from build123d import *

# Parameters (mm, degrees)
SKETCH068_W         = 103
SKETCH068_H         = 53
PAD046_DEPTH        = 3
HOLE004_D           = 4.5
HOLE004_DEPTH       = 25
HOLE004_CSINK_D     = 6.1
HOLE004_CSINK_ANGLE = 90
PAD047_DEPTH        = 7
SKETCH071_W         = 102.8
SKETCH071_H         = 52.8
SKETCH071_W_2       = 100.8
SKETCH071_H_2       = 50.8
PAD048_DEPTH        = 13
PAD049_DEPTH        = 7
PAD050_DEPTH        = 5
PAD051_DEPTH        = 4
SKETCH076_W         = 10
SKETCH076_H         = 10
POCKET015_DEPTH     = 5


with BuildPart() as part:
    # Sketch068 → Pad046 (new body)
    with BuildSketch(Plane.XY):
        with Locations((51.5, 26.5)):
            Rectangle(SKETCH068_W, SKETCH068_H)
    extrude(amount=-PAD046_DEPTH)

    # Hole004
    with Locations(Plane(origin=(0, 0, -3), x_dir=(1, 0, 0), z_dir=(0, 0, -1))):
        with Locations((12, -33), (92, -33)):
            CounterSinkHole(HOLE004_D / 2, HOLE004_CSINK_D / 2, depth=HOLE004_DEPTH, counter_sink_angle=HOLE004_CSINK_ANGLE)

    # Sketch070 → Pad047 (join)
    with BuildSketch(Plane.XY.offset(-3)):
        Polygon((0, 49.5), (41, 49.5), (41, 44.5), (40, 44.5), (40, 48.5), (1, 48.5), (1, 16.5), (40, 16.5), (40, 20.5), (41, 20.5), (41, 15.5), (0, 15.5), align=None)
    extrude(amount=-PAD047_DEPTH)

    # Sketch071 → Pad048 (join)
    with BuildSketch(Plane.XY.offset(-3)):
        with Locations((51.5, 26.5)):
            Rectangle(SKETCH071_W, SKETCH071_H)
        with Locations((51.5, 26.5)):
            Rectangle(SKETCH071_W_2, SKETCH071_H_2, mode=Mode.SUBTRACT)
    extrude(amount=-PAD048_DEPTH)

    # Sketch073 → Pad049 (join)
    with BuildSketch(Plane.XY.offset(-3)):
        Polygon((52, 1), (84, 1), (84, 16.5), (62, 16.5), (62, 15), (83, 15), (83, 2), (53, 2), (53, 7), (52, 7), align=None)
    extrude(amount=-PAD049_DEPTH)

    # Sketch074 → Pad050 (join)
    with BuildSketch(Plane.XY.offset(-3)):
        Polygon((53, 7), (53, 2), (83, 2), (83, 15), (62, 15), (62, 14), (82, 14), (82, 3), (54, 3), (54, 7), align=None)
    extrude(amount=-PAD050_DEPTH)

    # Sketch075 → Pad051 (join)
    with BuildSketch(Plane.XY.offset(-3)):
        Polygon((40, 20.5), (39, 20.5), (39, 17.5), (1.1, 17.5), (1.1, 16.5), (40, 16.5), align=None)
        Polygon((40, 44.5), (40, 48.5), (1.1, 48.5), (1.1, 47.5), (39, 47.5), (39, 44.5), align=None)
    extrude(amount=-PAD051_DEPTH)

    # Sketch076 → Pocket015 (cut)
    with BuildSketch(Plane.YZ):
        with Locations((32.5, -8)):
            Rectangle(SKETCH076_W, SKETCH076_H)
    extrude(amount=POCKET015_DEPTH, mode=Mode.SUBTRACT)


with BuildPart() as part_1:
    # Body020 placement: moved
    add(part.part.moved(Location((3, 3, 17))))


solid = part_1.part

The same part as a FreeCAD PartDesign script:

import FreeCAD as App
import Part
import Sketcher

V = App.Vector
Q = App.Units.Quantity

doc = App.newDocument("Part")
body = doc.addObject("PartDesign::Body", "Body")

# Sketch on XY plane
sketch1 = body.newObject("Sketcher::SketchObject", "Sketch")
sketch1.AttachmentSupport = (doc.getObject("XY_Plane"), [""])
sketch1.MapMode = "FlatFace"
sketch1.addGeometry(Part.LineSegment(V(0, 53, 0), V(0, 0, 0)), False)
sketch1.addGeometry(Part.LineSegment(V(0, 0, 0), V(103, 0, 0)), False)
sketch1.addGeometry(Part.LineSegment(V(103, 0, 0), V(103, 53, 0)), False)
sketch1.addGeometry(Part.LineSegment(V(103, 53, 0), V(0, 53, 0)), False)
sketch1.addConstraint(Sketcher.Constraint("Coincident", 0, 2, 1, 1))
sketch1.addConstraint(Sketcher.Constraint("Coincident", 1, 2, 2, 1))
sketch1.addConstraint(Sketcher.Constraint("Coincident", 2, 2, 3, 1))
sketch1.addConstraint(Sketcher.Constraint("Coincident", 3, 2, 0, 1))
sketch1.addConstraint(Sketcher.Constraint("Vertical", 0))
sketch1.addConstraint(Sketcher.Constraint("Horizontal", 1))
sketch1.addConstraint(Sketcher.Constraint("Vertical", 2))
sketch1.addConstraint(Sketcher.Constraint("Horizontal", 3))
sketch1.addConstraint(Sketcher.Constraint("Coincident", 0, 2, -1, 1))
sketch1.addConstraint(Sketcher.Constraint("DistanceX", 1, 1, 1, 2, Q("103 mm")))
sketch1.addConstraint(Sketcher.Constraint("DistanceY", 0, 2, 0, 1, Q("53 mm")))
pad1 = body.newObject("PartDesign::Pad", "Pad")
pad1.Profile = sketch1
pad1.Length = 3
pad1.Reversed = True

# Sketch on XY plane
sketch2 = body.newObject("Sketcher::SketchObject", "Sketch001")
sketch2.AttachmentSupport = (doc.getObject("XY_Plane"), [""])
sketch2.MapMode = "FlatFace"
sketch2.AttachmentOffset = App.Placement(V(0, 0, -3), App.Rotation())
sketch2.addGeometry(Part.Circle(V(12, 33, 0), V(0, 0, 1), 2.2), False)
sketch2.addGeometry(Part.Circle(V(92, 33, 0), V(0, 0, 1), 2.2), False)
sketch2.addConstraint(Sketcher.Constraint("Equal", 0, 1))
sketch2.addConstraint(Sketcher.Constraint("Horizontal", 0, 3, 1, 3))
sketch2.addConstraint(Sketcher.Constraint("Diameter", 0, Q("4.5 mm")))
sketch2.addConstraint(Sketcher.Constraint("DistanceX", -1, 1, 0, 3, Q("12 mm")))
sketch2.addConstraint(Sketcher.Constraint("DistanceY", -1, 1, 0, 3, Q("33 mm")))
sketch2.addConstraint(Sketcher.Constraint("DistanceX", -1, 1, 1, 3, Q("92 mm")))
doc.recompute()
hole = body.newObject("PartDesign::Hole", "Hole")
hole.Profile = sketch2
hole.ThreadType = "None"
hole.Diameter = 4.5
hole.DepthType = "Dimension"
hole.Depth = 25
hole.DrillPoint = "Flat"
hole.HoleCutType = "Countersink"
hole.HoleCutDiameter = 6.1
hole.HoleCutCountersinkAngle = 90
hole.Reversed = True

# Sketch on XY plane
sketch3 = body.newObject("Sketcher::SketchObject", "Sketch002")
sketch3.AttachmentSupport = (doc.getObject("XY_Plane"), [""])
sketch3.MapMode = "FlatFace"
sketch3.AttachmentOffset = App.Placement(V(0, 0, -3), App.Rotation())
sketch3.addGeometry(Part.LineSegment(V(41, 49.5, 0), V(0, 49.5, 0)), False)
sketch3.addGeometry(Part.LineSegment(V(0, 49.5, 0), V(0, 15.5, 0)), False)
sketch3.addGeometry(Part.LineSegment(V(0, 15.5, 0), V(41, 15.5, 0)), False)
sketch3.addGeometry(Part.LineSegment(V(41, 15.5, 0), V(41, 20.5, 0)), False)
sketch3.addGeometry(Part.LineSegment(V(41, 20.5, 0), V(40, 20.5, 0)), False)
sketch3.addGeometry(Part.LineSegment(V(40, 20.5, 0), V(40, 16.5, 0)), False)
sketch3.addGeometry(Part.LineSegment(V(40, 16.5, 0), V(1, 16.5, 0)), False)
sketch3.addGeometry(Part.LineSegment(V(1, 16.5, 0), V(1, 48.5, 0)), False)
sketch3.addGeometry(Part.LineSegment(V(1, 48.5, 0), V(40, 48.5, 0)), False)
sketch3.addGeometry(Part.LineSegment(V(40, 48.5, 0), V(40, 44.5, 0)), False)
sketch3.addGeometry(Part.LineSegment(V(40, 44.5, 0), V(41, 44.5, 0)), False)
sketch3.addGeometry(Part.LineSegment(V(41, 44.5, 0), V(41, 49.5, 0)), False)
sketch3.addConstraint(Sketcher.Constraint("Coincident", 0, 2, 1, 1))
sketch3.addConstraint(Sketcher.Constraint("Coincident", 1, 2, 2, 1))
sketch3.addConstraint(Sketcher.Constraint("Coincident", 2, 2, 3, 1))
sketch3.addConstraint(Sketcher.Constraint("Coincident", 3, 2, 4, 1))
sketch3.addConstraint(Sketcher.Constraint("Coincident", 4, 2, 5, 1))
sketch3.addConstraint(Sketcher.Constraint("Coincident", 5, 2, 6, 1))
sketch3.addConstraint(Sketcher.Constraint("Coincident", 6, 2, 7, 1))
sketch3.addConstraint(Sketcher.Constraint("Coincident", 7, 2, 8, 1))
sketch3.addConstraint(Sketcher.Constraint("Coincident", 8, 2, 9, 1))
sketch3.addConstraint(Sketcher.Constraint("Coincident", 9, 2, 10, 1))
sketch3.addConstraint(Sketcher.Constraint("Coincident", 10, 2, 11, 1))
sketch3.addConstraint(Sketcher.Constraint("Coincident", 11, 2, 0, 1))
sketch3.addConstraint(Sketcher.Constraint("Horizontal", 0))
sketch3.addConstraint(Sketcher.Constraint("Vertical", 1))
sketch3.addConstraint(Sketcher.Constraint("Horizontal", 2))
sketch3.addConstraint(Sketcher.Constraint("Vertical", 3))
sketch3.addConstraint(Sketcher.Constraint("Horizontal", 4))
sketch3.addConstraint(Sketcher.Constraint("Vertical", 5))
sketch3.addConstraint(Sketcher.Constraint("Horizontal", 6))
sketch3.addConstraint(Sketcher.Constraint("Vertical", 7))
sketch3.addConstraint(Sketcher.Constraint("Horizontal", 8))
sketch3.addConstraint(Sketcher.Constraint("Vertical", 9))
sketch3.addConstraint(Sketcher.Constraint("Horizontal", 10))
sketch3.addConstraint(Sketcher.Constraint("Vertical", 11))
sketch3.addConstraint(Sketcher.Constraint("PointOnObject", 0, 2, -2))
sketch3.addConstraint(Sketcher.Constraint("Vertical", 5, 2, 8, 2))
sketch3.addConstraint(Sketcher.Constraint("Vertical", 3, 2, 10, 2))
sketch3.addConstraint(Sketcher.Constraint("Equal", 5, 9))
sketch3.addConstraint(Sketcher.Constraint("Equal", 3, 11))
sketch3.addConstraint(Sketcher.Constraint("DistanceX", 0, 2, 0, 1, Q("41 mm")))
sketch3.addConstraint(Sketcher.Constraint("DistanceX", 4, 2, 4, 1, Q("1 mm")))
sketch3.addConstraint(Sketcher.Constraint("DistanceX", 6, 2, 6, 1, Q("39 mm")))
sketch3.addConstraint(Sketcher.Constraint("DistanceY", 1, 2, 1, 1, Q("34 mm")))
sketch3.addConstraint(Sketcher.Constraint("DistanceY", 3, 1, 3, 2, Q("5 mm")))
sketch3.addConstraint(Sketcher.Constraint("DistanceY", 5, 2, 5, 1, Q("4 mm")))
sketch3.addConstraint(Sketcher.Constraint("DistanceY", -1, 1, 0, 2, Q("49.5 mm")))
pad2 = body.newObject("PartDesign::Pad", "Pad001")
pad2.Profile = sketch3
pad2.Length = 7
pad2.Reversed = True

# Sketch on XY plane
sketch4 = body.newObject("Sketcher::SketchObject", "Sketch003")
sketch4.AttachmentSupport = (doc.getObject("XY_Plane"), [""])
sketch4.MapMode = "FlatFace"
sketch4.AttachmentOffset = App.Placement(V(0, 0, -3), App.Rotation())
sketch4.addGeometry(Part.LineSegment(V(0, 53, 0), V(0, 0, 0)), False)
sketch4.addGeometry(Part.LineSegment(V(0, 0, 0), V(103, 0, 0)), False)
sketch4.addGeometry(Part.LineSegment(V(103, 0, 0), V(103, 53, 0)), False)
sketch4.addGeometry(Part.LineSegment(V(103, 53, 0), V(0, 53, 0)), False)
sketch4.addGeometry(Part.LineSegment(V(102, 1, 0), V(1, 1, 0)), False)
sketch4.addGeometry(Part.LineSegment(V(1, 1, 0), V(1, 52, 0)), False)
sketch4.addGeometry(Part.LineSegment(V(1, 52, 0), V(102, 52, 0)), False)
sketch4.addGeometry(Part.LineSegment(V(102, 52, 0), V(102, 1, 0)), False)
sketch4.addConstraint(Sketcher.Constraint("Coincident", 0, 2, 1, 1))
sketch4.addConstraint(Sketcher.Constraint("Coincident", 1, 2, 2, 1))
sketch4.addConstraint(Sketcher.Constraint("Coincident", 2, 2, 3, 1))
sketch4.addConstraint(Sketcher.Constraint("Coincident", 3, 2, 0, 1))
sketch4.addConstraint(Sketcher.Constraint("Coincident", 4, 2, 5, 1))
sketch4.addConstraint(Sketcher.Constraint("Coincident", 5, 2, 6, 1))
sketch4.addConstraint(Sketcher.Constraint("Coincident", 6, 2, 7, 1))
sketch4.addConstraint(Sketcher.Constraint("Coincident", 7, 2, 4, 1))
sketch4.addConstraint(Sketcher.Constraint("Vertical", 0))
sketch4.addConstraint(Sketcher.Constraint("Horizontal", 1))
sketch4.addConstraint(Sketcher.Constraint("Vertical", 2))
sketch4.addConstraint(Sketcher.Constraint("Horizontal", 3))
sketch4.addConstraint(Sketcher.Constraint("Horizontal", 4))
sketch4.addConstraint(Sketcher.Constraint("Vertical", 5))
sketch4.addConstraint(Sketcher.Constraint("Horizontal", 6))
sketch4.addConstraint(Sketcher.Constraint("Vertical", 7))
sketch4.addConstraint(Sketcher.Constraint("DistanceX", 1, 1, 1, 2, Q("102.8 mm")))
sketch4.addConstraint(Sketcher.Constraint("DistanceX", 4, 2, 4, 1, Q("100.8 mm")))
sketch4.addConstraint(Sketcher.Constraint("DistanceY", 0, 2, 0, 1, Q("52.8 mm")))
sketch4.addConstraint(Sketcher.Constraint("DistanceY", 5, 1, 5, 2, Q("50.8 mm")))
sketch4.addConstraint(Sketcher.Constraint("DistanceX", 0, 2, 4, 2, Q("1 mm")))
sketch4.addConstraint(Sketcher.Constraint("DistanceY", 0, 2, 4, 2, Q("1 mm")))
sketch4.addConstraint(Sketcher.Constraint("DistanceX", -1, 1, 0, 2, Q("0.1 mm")))
sketch4.addConstraint(Sketcher.Constraint("DistanceY", -1, 1, 0, 2, Q("0.1 mm")))
pad3 = body.newObject("PartDesign::Pad", "Pad002")
pad3.Profile = sketch4
pad3.Length = 13
pad3.Reversed = True

# Sketch on XY plane
sketch5 = body.newObject("Sketcher::SketchObject", "Sketch004")
sketch5.AttachmentSupport = (doc.getObject("XY_Plane"), [""])
sketch5.MapMode = "FlatFace"
sketch5.AttachmentOffset = App.Placement(V(0, 0, -3), App.Rotation())
sketch5.addGeometry(Part.LineSegment(V(52, 1, 0), V(84, 1, 0)), False)
sketch5.addGeometry(Part.LineSegment(V(84, 1, 0), V(84, 16.5, 0)), False)
sketch5.addGeometry(Part.LineSegment(V(84, 16.5, 0), V(62, 16.5, 0)), False)
sketch5.addGeometry(Part.LineSegment(V(62, 16.5, 0), V(62, 15, 0)), False)
sketch5.addGeometry(Part.LineSegment(V(62, 15, 0), V(83, 15, 0)), False)
sketch5.addGeometry(Part.LineSegment(V(83, 15, 0), V(83, 2, 0)), False)
sketch5.addGeometry(Part.LineSegment(V(83, 2, 0), V(53, 2, 0)), False)
sketch5.addGeometry(Part.LineSegment(V(53, 2, 0), V(53, 7, 0)), False)
sketch5.addGeometry(Part.LineSegment(V(53, 7, 0), V(52, 7, 0)), False)
sketch5.addGeometry(Part.LineSegment(V(52, 7, 0), V(52, 1, 0)), False)
sketch5.addConstraint(Sketcher.Constraint("Coincident", 0, 2, 1, 1))
sketch5.addConstraint(Sketcher.Constraint("Coincident", 1, 2, 2, 1))
sketch5.addConstraint(Sketcher.Constraint("Coincident", 2, 2, 3, 1))
sketch5.addConstraint(Sketcher.Constraint("Coincident", 3, 2, 4, 1))
sketch5.addConstraint(Sketcher.Constraint("Coincident", 4, 2, 5, 1))
sketch5.addConstraint(Sketcher.Constraint("Coincident", 5, 2, 6, 1))
sketch5.addConstraint(Sketcher.Constraint("Coincident", 6, 2, 7, 1))
sketch5.addConstraint(Sketcher.Constraint("Coincident", 7, 2, 8, 1))
sketch5.addConstraint(Sketcher.Constraint("Coincident", 8, 2, 9, 1))
sketch5.addConstraint(Sketcher.Constraint("Coincident", 9, 2, 0, 1))
sketch5.addConstraint(Sketcher.Constraint("Horizontal", 0))
sketch5.addConstraint(Sketcher.Constraint("Vertical", 1))
sketch5.addConstraint(Sketcher.Constraint("Horizontal", 2))
sketch5.addConstraint(Sketcher.Constraint("Vertical", 3))
sketch5.addConstraint(Sketcher.Constraint("Horizontal", 4))
sketch5.addConstraint(Sketcher.Constraint("Vertical", 5))
sketch5.addConstraint(Sketcher.Constraint("Horizontal", 6))
sketch5.addConstraint(Sketcher.Constraint("Vertical", 7))
sketch5.addConstraint(Sketcher.Constraint("Horizontal", 8))
sketch5.addConstraint(Sketcher.Constraint("Vertical", 9))
sketch5.addConstraint(Sketcher.Constraint("DistanceX", 0, 1, 0, 2, Q("32 mm")))
sketch5.addConstraint(Sketcher.Constraint("DistanceX", 2, 2, 2, 1, Q("22 mm")))
sketch5.addConstraint(Sketcher.Constraint("DistanceX", 4, 1, 4, 2, Q("21 mm")))
sketch5.addConstraint(Sketcher.Constraint("DistanceX", 6, 2, 6, 1, Q("30 mm")))
sketch5.addConstraint(Sketcher.Constraint("DistanceY", 5, 2, 5, 1, Q("13 mm")))
sketch5.addConstraint(Sketcher.Constraint("DistanceY", 7, 1, 7, 2, Q("5 mm")))
sketch5.addConstraint(Sketcher.Constraint("DistanceY", 9, 2, 9, 1, Q("6 mm")))
sketch5.addConstraint(Sketcher.Constraint("DistanceY", 1, 1, 1, 2, Q("15.5 mm")))
sketch5.addConstraint(Sketcher.Constraint("DistanceX", -1, 1, 0, 2, Q("84 mm")))
sketch5.addConstraint(Sketcher.Constraint("DistanceY", -1, 1, 0, 2, Q("1 mm")))
pad4 = body.newObject("PartDesign::Pad", "Pad003")
pad4.Profile = sketch5
pad4.Length = 7
pad4.Reversed = True

# Sketch on XY plane
sketch6 = body.newObject("Sketcher::SketchObject", "Sketch005")
sketch6.AttachmentSupport = (doc.getObject("XY_Plane"), [""])
sketch6.MapMode = "FlatFace"
sketch6.AttachmentOffset = App.Placement(V(0, 0, -3), App.Rotation())
sketch6.addGeometry(Part.LineSegment(V(53, 7, 0), V(53, 2, 0)), False)
sketch6.addGeometry(Part.LineSegment(V(53, 2, 0), V(83, 2, 0)), False)
sketch6.addGeometry(Part.LineSegment(V(83, 2, 0), V(83, 15, 0)), False)
sketch6.addGeometry(Part.LineSegment(V(83, 15, 0), V(62, 15, 0)), False)
sketch6.addGeometry(Part.LineSegment(V(62, 15, 0), V(62, 14, 0)), False)
sketch6.addGeometry(Part.LineSegment(V(62, 14, 0), V(82, 14, 0)), False)
sketch6.addGeometry(Part.LineSegment(V(82, 14, 0), V(82, 3, 0)), False)
sketch6.addGeometry(Part.LineSegment(V(82, 3, 0), V(54, 3, 0)), False)
sketch6.addGeometry(Part.LineSegment(V(54, 3, 0), V(54, 7, 0)), False)
sketch6.addGeometry(Part.LineSegment(V(54, 7, 0), V(53, 7, 0)), False)
sketch6.addConstraint(Sketcher.Constraint("Coincident", 0, 2, 1, 1))
sketch6.addConstraint(Sketcher.Constraint("Coincident", 1, 2, 2, 1))
sketch6.addConstraint(Sketcher.Constraint("Coincident", 2, 2, 3, 1))
sketch6.addConstraint(Sketcher.Constraint("Coincident", 3, 2, 4, 1))
sketch6.addConstraint(Sketcher.Constraint("Coincident", 4, 2, 5, 1))
sketch6.addConstraint(Sketcher.Constraint("Coincident", 5, 2, 6, 1))
sketch6.addConstraint(Sketcher.Constraint("Coincident", 6, 2, 7, 1))
sketch6.addConstraint(Sketcher.Constraint("Coincident", 7, 2, 8, 1))
sketch6.addConstraint(Sketcher.Constraint("Coincident", 8, 2, 9, 1))
sketch6.addConstraint(Sketcher.Constraint("Coincident", 9, 2, 0, 1))
sketch6.addConstraint(Sketcher.Constraint("Vertical", 0))
sketch6.addConstraint(Sketcher.Constraint("Horizontal", 1))
sketch6.addConstraint(Sketcher.Constraint("Vertical", 2))
sketch6.addConstraint(Sketcher.Constraint("Horizontal", 3))
sketch6.addConstraint(Sketcher.Constraint("Vertical", 4))
sketch6.addConstraint(Sketcher.Constraint("Horizontal", 5))
sketch6.addConstraint(Sketcher.Constraint("Vertical", 6))
sketch6.addConstraint(Sketcher.Constraint("Horizontal", 7))
sketch6.addConstraint(Sketcher.Constraint("Vertical", 8))
sketch6.addConstraint(Sketcher.Constraint("Horizontal", 9))
sketch6.addConstraint(Sketcher.Constraint("Equal", 9, 4))
sketch6.addConstraint(Sketcher.Constraint("DistanceX", 1, 1, 1, 2, Q("30 mm")))
sketch6.addConstraint(Sketcher.Constraint("DistanceX", 3, 2, 3, 1, Q("21 mm")))
sketch6.addConstraint(Sketcher.Constraint("DistanceX", 5, 1, 5, 2, Q("20 mm")))
sketch6.addConstraint(Sketcher.Constraint("DistanceX", 7, 2, 7, 1, Q("28 mm")))
sketch6.addConstraint(Sketcher.Constraint("DistanceY", 0, 2, 0, 1, Q("5 mm")))
sketch6.addConstraint(Sketcher.Constraint("DistanceY", 2, 1, 2, 2, Q("13 mm")))
sketch6.addConstraint(Sketcher.Constraint("DistanceY", 6, 2, 6, 1, Q("11 mm")))
sketch6.addConstraint(Sketcher.Constraint("DistanceX", -1, 1, 0, 2, Q("53 mm")))
sketch6.addConstraint(Sketcher.Constraint("DistanceY", -1, 1, 0, 2, Q("2 mm")))
pad5 = body.newObject("PartDesign::Pad", "Pad004")
pad5.Profile = sketch6
pad5.Length = 5
pad5.Reversed = True

# Sketch on XY plane
sketch7 = body.newObject("Sketcher::SketchObject", "Sketch006")
sketch7.AttachmentSupport = (doc.getObject("XY_Plane"), [""])
sketch7.MapMode = "FlatFace"
sketch7.AttachmentOffset = App.Placement(V(0, 0, -3), App.Rotation())
sketch7.addGeometry(Part.LineSegment(V(40, 20.5, 0), V(39, 20.5, 0)), False)
sketch7.addGeometry(Part.LineSegment(V(39, 20.5, 0), V(39, 17.5, 0)), False)
sketch7.addGeometry(Part.LineSegment(V(39, 17.5, 0), V(1.1, 17.5, 0)), False)
sketch7.addGeometry(Part.LineSegment(V(1.1, 17.5, 0), V(1.1, 16.5, 0)), False)
sketch7.addGeometry(Part.LineSegment(V(1.1, 16.5, 0), V(40, 16.5, 0)), False)
sketch7.addGeometry(Part.LineSegment(V(40, 16.5, 0), V(40, 20.5, 0)), False)
sketch7.addGeometry(Part.LineSegment(V(40, 44.5, 0), V(40, 48.5, 0)), False)
sketch7.addGeometry(Part.LineSegment(V(40, 48.5, 0), V(1.1, 48.5, 0)), False)
sketch7.addGeometry(Part.LineSegment(V(1.1, 48.5, 0), V(1.1, 47.5, 0)), False)
sketch7.addGeometry(Part.LineSegment(V(1.1, 47.5, 0), V(39, 47.5, 0)), False)
sketch7.addGeometry(Part.LineSegment(V(39, 47.5, 0), V(39, 44.5, 0)), False)
sketch7.addGeometry(Part.LineSegment(V(39, 44.5, 0), V(40, 44.5, 0)), False)
sketch7.addConstraint(Sketcher.Constraint("Coincident", 0, 2, 1, 1))
sketch7.addConstraint(Sketcher.Constraint("Coincident", 1, 2, 2, 1))
sketch7.addConstraint(Sketcher.Constraint("Coincident", 2, 2, 3, 1))
sketch7.addConstraint(Sketcher.Constraint("Coincident", 3, 2, 4, 1))
sketch7.addConstraint(Sketcher.Constraint("Coincident", 4, 2, 5, 1))
sketch7.addConstraint(Sketcher.Constraint("Coincident", 5, 2, 0, 1))
sketch7.addConstraint(Sketcher.Constraint("Coincident", 6, 2, 7, 1))
sketch7.addConstraint(Sketcher.Constraint("Coincident", 7, 2, 8, 1))
sketch7.addConstraint(Sketcher.Constraint("Coincident", 8, 2, 9, 1))
sketch7.addConstraint(Sketcher.Constraint("Coincident", 9, 2, 10, 1))
sketch7.addConstraint(Sketcher.Constraint("Coincident", 10, 2, 11, 1))
sketch7.addConstraint(Sketcher.Constraint("Coincident", 11, 2, 6, 1))
sketch7.addConstraint(Sketcher.Constraint("Horizontal", 0))
sketch7.addConstraint(Sketcher.Constraint("Vertical", 1))
sketch7.addConstraint(Sketcher.Constraint("Horizontal", 2))
sketch7.addConstraint(Sketcher.Constraint("Vertical", 3))
sketch7.addConstraint(Sketcher.Constraint("Horizontal", 4))
sketch7.addConstraint(Sketcher.Constraint("Vertical", 5))
sketch7.addConstraint(Sketcher.Constraint("Vertical", 6))
sketch7.addConstraint(Sketcher.Constraint("Horizontal", 7))
sketch7.addConstraint(Sketcher.Constraint("Vertical", 8))
sketch7.addConstraint(Sketcher.Constraint("Horizontal", 9))
sketch7.addConstraint(Sketcher.Constraint("Vertical", 10))
sketch7.addConstraint(Sketcher.Constraint("Horizontal", 11))
sketch7.addConstraint(Sketcher.Constraint("Vertical", 5, 2, 6, 2))
sketch7.addConstraint(Sketcher.Constraint("Vertical", 3, 2, 7, 2))
sketch7.addConstraint(Sketcher.Constraint("Vertical", 1, 2, 9, 2))
sketch7.addConstraint(Sketcher.Constraint("Equal", 11, 3))
sketch7.addConstraint(Sketcher.Constraint("Equal", 5, 6))
sketch7.addConstraint(Sketcher.Constraint("Equal", 3, 8))
sketch7.addConstraint(Sketcher.Constraint("DistanceX", 0, 2, 0, 1, Q("1 mm")))
sketch7.addConstraint(Sketcher.Constraint("DistanceY", 1, 2, 1, 1, Q("3 mm")))
sketch7.addConstraint(Sketcher.Constraint("DistanceX", 2, 2, 2, 1, Q("37.9 mm")))
sketch7.addConstraint(Sketcher.Constraint("DistanceX", -1, 1, 0, 2, Q("39 mm")))
sketch7.addConstraint(Sketcher.Constraint("DistanceY", 5, 2, 6, 2, Q("28 mm")))
sketch7.addConstraint(Sketcher.Constraint("DistanceY", -1, 1, 0, 2, Q("20.5 mm")))
pad6 = body.newObject("PartDesign::Pad", "Pad005")
pad6.Profile = sketch7
pad6.Length = 4
pad6.Reversed = True

# Sketch on YZ plane
sketch8 = body.newObject("Sketcher::SketchObject", "Sketch007")
sketch8.AttachmentSupport = (doc.getObject("YZ_Plane"), [""])
sketch8.MapMode = "FlatFace"
sketch8.addGeometry(Part.LineSegment(V(28, -3, 0), V(28, -13, 0)), False)
sketch8.addGeometry(Part.LineSegment(V(28, -13, 0), V(38, -13, 0)), False)
sketch8.addGeometry(Part.LineSegment(V(38, -13, 0), V(38, -3, 0)), False)
sketch8.addGeometry(Part.LineSegment(V(38, -3, 0), V(28, -3, 0)), False)
sketch8.addConstraint(Sketcher.Constraint("Coincident", 0, 2, 1, 1))
sketch8.addConstraint(Sketcher.Constraint("Coincident", 1, 2, 2, 1))
sketch8.addConstraint(Sketcher.Constraint("Coincident", 2, 2, 3, 1))
sketch8.addConstraint(Sketcher.Constraint("Coincident", 3, 2, 0, 1))
sketch8.addConstraint(Sketcher.Constraint("Vertical", 0))
sketch8.addConstraint(Sketcher.Constraint("Horizontal", 1))
sketch8.addConstraint(Sketcher.Constraint("Vertical", 2))
sketch8.addConstraint(Sketcher.Constraint("Horizontal", 3))
sketch8.addConstraint(Sketcher.Constraint("Equal", 3, 0))
sketch8.addConstraint(Sketcher.Constraint("DistanceX", 1, 1, 1, 2, Q("10 mm")))
sketch8.addConstraint(Sketcher.Constraint("DistanceY", 0, 2, -1, 1, Q("13 mm")))
sketch8.addConstraint(Sketcher.Constraint("DistanceX", -1, 1, 0, 2, Q("27.5 mm")))
pocket1 = body.newObject("PartDesign::Pocket", "Pocket")
pocket1.Profile = sketch8
pocket1.Length = 5
pocket1.Reversed = True
body2 = doc.addObject("PartDesign::Body", "Body001")
doc.recompute()

body.Placement = App.Placement(V(3, 3, 17), App.Rotation(V(0, 0, 1), 0))
boolean = body2.newObject("PartDesign::Boolean", "Boolean")
boolean.Type = "Fuse"
boolean.addObjects([body])

doc.recompute()
